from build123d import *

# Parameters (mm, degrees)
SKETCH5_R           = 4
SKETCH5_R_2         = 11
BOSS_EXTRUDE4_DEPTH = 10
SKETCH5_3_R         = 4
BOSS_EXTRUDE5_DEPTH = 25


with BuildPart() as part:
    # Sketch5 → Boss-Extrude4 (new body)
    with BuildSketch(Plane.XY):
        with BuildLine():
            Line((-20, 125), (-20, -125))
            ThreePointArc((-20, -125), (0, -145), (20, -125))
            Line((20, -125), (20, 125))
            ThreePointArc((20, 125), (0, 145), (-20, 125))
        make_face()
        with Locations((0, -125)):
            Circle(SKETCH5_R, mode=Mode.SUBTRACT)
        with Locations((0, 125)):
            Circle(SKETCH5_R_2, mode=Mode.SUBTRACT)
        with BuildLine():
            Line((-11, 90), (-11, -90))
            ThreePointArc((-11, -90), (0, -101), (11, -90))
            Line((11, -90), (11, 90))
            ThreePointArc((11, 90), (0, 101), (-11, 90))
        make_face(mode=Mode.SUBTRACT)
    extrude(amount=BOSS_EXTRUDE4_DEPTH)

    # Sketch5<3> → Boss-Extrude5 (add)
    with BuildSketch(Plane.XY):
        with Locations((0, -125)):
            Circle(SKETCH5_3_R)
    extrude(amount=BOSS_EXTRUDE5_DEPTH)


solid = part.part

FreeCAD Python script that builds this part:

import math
import FreeCAD as App
import Part
import Sketcher
from FreeCAD import Vector

doc = App.newDocument("Part")
body = doc.addObject("PartDesign::Body", "Body")

sketch1 = body.newObject("Sketcher::SketchObject", "Sketch")
sketch1.AttachmentSupport = (doc.getObject("XY_Plane"), [""])
sketch1.MapMode = "FlatFace"
sketch1.addGeometry([
    Part.LineSegment(Vector(-20, 125, 0), Vector(-20, -125, 0)),
    Part.ArcOfCircle(Part.Circle(Vector(0, -125, 0), Vector(0, 0, 1), 20), math.radians(180), math.radians(360)),
    Part.LineSegment(Vector(20, -125, 0), Vector(20, 125, 0)),
    Part.ArcOfCircle(Part.Circle(Vector(0, 125, 0), Vector(0, 0, 1), 20), math.radians(0), math.radians(180)),
    Part.Circle(Vector(0, -125, 0), Vector(0, 0, 1), 4),
    Part.LineSegment(Vector(-11, -90, 0), Vector(-11, 90, 0)),
    Part.ArcOfCircle(Part.Circle(Vector(0, 90, 0), Vector(0, 0, 1), 11), math.radians(0), math.radians(180)),
    Part.LineSegment(Vector(11, 90, 0), Vector(11, -90, 0)),
    Part.ArcOfCircle(Part.Circle(Vector(0, -90, 0), Vector(0, 0, 1), 11), math.radians(180), math.radians(360)),
    Part.Circle(Vector(0, 125, 0), Vector(0, 0, 1), 11),
], False)
sketch1.addConstraint([
    Sketcher.Constraint("Tangent", 0, 2, 1, 1),
    Sketcher.Constraint("Tangent", 1, 2, 2, 1),
    Sketcher.Constraint("Tangent", 2, 2, 3, 1),
    Sketcher.Constraint("Tangent", 3, 2, 0, 1),
    Sketcher.Constraint("Tangent", 5, 2, 6, 2),
    Sketcher.Constraint("Tangent", 6, 1, 7, 1),
    Sketcher.Constraint("Tangent", 7, 2, 8, 2),
    Sketcher.Constraint("Tangent", 8, 1, 5, 1),
    Sketcher.Constraint("Vertical", 0),
    Sketcher.Constraint("Vertical", 2),
    Sketcher.Constraint("Vertical", 5),
    Sketcher.Constraint("Vertical", 7),
    Sketcher.Constraint("Coincident", 4, 3, 1, 3),
    Sketcher.Constraint("Coincident", 9, 3, 3, 3),
    Sketcher.Constraint("Equal", 8, 9),
    Sketcher.Constraint("Symmetric", 1, 3, 3, 3, -1, 1),
    Sketcher.Constraint("Symmetric", 6, 3, 8, 3, -1, 1),
    Sketcher.Constraint("Diameter", 4, 8.0),
    Sketcher.Constraint("Diameter", 9, 22.0),
    Sketcher.Constraint("Radius", 1, 20.0),
    Sketcher.Constraint("DistanceY", 0, 2, 0, 1, 250.0),
    Sketcher.Constraint("DistanceY", 5, 1, 5, 2, 180.0),
])
pad1 = body.newObject("PartDesign::Pad", "Pad")
pad1.Profile = sketch1
pad1.Length = 10

sketch2 = body.newObject("Sketcher::SketchObject", "Sketch001")
sketch2.AttachmentSupport = (doc.getObject("XY_Plane"), [""])
sketch2.MapMode = "FlatFace"
sketch2.addGeometry(Part.Circle(Vector(0, -125, 0), Vector(0, 0, 1), 4), False)
sketch2.addConstraint([
    Sketcher.Constraint("PointOnObject", 0, 3, -2),
    Sketcher.Constraint("Diameter", 0, 8.0),
    Sketcher.Constraint("DistanceY", 0, 3, -1, 1, 125.0),
])
pad2 = body.newObject("PartDesign::Pad", "Pad001")
pad2.Profile = sketch2
pad2.Length = 25

doc.recompute()
